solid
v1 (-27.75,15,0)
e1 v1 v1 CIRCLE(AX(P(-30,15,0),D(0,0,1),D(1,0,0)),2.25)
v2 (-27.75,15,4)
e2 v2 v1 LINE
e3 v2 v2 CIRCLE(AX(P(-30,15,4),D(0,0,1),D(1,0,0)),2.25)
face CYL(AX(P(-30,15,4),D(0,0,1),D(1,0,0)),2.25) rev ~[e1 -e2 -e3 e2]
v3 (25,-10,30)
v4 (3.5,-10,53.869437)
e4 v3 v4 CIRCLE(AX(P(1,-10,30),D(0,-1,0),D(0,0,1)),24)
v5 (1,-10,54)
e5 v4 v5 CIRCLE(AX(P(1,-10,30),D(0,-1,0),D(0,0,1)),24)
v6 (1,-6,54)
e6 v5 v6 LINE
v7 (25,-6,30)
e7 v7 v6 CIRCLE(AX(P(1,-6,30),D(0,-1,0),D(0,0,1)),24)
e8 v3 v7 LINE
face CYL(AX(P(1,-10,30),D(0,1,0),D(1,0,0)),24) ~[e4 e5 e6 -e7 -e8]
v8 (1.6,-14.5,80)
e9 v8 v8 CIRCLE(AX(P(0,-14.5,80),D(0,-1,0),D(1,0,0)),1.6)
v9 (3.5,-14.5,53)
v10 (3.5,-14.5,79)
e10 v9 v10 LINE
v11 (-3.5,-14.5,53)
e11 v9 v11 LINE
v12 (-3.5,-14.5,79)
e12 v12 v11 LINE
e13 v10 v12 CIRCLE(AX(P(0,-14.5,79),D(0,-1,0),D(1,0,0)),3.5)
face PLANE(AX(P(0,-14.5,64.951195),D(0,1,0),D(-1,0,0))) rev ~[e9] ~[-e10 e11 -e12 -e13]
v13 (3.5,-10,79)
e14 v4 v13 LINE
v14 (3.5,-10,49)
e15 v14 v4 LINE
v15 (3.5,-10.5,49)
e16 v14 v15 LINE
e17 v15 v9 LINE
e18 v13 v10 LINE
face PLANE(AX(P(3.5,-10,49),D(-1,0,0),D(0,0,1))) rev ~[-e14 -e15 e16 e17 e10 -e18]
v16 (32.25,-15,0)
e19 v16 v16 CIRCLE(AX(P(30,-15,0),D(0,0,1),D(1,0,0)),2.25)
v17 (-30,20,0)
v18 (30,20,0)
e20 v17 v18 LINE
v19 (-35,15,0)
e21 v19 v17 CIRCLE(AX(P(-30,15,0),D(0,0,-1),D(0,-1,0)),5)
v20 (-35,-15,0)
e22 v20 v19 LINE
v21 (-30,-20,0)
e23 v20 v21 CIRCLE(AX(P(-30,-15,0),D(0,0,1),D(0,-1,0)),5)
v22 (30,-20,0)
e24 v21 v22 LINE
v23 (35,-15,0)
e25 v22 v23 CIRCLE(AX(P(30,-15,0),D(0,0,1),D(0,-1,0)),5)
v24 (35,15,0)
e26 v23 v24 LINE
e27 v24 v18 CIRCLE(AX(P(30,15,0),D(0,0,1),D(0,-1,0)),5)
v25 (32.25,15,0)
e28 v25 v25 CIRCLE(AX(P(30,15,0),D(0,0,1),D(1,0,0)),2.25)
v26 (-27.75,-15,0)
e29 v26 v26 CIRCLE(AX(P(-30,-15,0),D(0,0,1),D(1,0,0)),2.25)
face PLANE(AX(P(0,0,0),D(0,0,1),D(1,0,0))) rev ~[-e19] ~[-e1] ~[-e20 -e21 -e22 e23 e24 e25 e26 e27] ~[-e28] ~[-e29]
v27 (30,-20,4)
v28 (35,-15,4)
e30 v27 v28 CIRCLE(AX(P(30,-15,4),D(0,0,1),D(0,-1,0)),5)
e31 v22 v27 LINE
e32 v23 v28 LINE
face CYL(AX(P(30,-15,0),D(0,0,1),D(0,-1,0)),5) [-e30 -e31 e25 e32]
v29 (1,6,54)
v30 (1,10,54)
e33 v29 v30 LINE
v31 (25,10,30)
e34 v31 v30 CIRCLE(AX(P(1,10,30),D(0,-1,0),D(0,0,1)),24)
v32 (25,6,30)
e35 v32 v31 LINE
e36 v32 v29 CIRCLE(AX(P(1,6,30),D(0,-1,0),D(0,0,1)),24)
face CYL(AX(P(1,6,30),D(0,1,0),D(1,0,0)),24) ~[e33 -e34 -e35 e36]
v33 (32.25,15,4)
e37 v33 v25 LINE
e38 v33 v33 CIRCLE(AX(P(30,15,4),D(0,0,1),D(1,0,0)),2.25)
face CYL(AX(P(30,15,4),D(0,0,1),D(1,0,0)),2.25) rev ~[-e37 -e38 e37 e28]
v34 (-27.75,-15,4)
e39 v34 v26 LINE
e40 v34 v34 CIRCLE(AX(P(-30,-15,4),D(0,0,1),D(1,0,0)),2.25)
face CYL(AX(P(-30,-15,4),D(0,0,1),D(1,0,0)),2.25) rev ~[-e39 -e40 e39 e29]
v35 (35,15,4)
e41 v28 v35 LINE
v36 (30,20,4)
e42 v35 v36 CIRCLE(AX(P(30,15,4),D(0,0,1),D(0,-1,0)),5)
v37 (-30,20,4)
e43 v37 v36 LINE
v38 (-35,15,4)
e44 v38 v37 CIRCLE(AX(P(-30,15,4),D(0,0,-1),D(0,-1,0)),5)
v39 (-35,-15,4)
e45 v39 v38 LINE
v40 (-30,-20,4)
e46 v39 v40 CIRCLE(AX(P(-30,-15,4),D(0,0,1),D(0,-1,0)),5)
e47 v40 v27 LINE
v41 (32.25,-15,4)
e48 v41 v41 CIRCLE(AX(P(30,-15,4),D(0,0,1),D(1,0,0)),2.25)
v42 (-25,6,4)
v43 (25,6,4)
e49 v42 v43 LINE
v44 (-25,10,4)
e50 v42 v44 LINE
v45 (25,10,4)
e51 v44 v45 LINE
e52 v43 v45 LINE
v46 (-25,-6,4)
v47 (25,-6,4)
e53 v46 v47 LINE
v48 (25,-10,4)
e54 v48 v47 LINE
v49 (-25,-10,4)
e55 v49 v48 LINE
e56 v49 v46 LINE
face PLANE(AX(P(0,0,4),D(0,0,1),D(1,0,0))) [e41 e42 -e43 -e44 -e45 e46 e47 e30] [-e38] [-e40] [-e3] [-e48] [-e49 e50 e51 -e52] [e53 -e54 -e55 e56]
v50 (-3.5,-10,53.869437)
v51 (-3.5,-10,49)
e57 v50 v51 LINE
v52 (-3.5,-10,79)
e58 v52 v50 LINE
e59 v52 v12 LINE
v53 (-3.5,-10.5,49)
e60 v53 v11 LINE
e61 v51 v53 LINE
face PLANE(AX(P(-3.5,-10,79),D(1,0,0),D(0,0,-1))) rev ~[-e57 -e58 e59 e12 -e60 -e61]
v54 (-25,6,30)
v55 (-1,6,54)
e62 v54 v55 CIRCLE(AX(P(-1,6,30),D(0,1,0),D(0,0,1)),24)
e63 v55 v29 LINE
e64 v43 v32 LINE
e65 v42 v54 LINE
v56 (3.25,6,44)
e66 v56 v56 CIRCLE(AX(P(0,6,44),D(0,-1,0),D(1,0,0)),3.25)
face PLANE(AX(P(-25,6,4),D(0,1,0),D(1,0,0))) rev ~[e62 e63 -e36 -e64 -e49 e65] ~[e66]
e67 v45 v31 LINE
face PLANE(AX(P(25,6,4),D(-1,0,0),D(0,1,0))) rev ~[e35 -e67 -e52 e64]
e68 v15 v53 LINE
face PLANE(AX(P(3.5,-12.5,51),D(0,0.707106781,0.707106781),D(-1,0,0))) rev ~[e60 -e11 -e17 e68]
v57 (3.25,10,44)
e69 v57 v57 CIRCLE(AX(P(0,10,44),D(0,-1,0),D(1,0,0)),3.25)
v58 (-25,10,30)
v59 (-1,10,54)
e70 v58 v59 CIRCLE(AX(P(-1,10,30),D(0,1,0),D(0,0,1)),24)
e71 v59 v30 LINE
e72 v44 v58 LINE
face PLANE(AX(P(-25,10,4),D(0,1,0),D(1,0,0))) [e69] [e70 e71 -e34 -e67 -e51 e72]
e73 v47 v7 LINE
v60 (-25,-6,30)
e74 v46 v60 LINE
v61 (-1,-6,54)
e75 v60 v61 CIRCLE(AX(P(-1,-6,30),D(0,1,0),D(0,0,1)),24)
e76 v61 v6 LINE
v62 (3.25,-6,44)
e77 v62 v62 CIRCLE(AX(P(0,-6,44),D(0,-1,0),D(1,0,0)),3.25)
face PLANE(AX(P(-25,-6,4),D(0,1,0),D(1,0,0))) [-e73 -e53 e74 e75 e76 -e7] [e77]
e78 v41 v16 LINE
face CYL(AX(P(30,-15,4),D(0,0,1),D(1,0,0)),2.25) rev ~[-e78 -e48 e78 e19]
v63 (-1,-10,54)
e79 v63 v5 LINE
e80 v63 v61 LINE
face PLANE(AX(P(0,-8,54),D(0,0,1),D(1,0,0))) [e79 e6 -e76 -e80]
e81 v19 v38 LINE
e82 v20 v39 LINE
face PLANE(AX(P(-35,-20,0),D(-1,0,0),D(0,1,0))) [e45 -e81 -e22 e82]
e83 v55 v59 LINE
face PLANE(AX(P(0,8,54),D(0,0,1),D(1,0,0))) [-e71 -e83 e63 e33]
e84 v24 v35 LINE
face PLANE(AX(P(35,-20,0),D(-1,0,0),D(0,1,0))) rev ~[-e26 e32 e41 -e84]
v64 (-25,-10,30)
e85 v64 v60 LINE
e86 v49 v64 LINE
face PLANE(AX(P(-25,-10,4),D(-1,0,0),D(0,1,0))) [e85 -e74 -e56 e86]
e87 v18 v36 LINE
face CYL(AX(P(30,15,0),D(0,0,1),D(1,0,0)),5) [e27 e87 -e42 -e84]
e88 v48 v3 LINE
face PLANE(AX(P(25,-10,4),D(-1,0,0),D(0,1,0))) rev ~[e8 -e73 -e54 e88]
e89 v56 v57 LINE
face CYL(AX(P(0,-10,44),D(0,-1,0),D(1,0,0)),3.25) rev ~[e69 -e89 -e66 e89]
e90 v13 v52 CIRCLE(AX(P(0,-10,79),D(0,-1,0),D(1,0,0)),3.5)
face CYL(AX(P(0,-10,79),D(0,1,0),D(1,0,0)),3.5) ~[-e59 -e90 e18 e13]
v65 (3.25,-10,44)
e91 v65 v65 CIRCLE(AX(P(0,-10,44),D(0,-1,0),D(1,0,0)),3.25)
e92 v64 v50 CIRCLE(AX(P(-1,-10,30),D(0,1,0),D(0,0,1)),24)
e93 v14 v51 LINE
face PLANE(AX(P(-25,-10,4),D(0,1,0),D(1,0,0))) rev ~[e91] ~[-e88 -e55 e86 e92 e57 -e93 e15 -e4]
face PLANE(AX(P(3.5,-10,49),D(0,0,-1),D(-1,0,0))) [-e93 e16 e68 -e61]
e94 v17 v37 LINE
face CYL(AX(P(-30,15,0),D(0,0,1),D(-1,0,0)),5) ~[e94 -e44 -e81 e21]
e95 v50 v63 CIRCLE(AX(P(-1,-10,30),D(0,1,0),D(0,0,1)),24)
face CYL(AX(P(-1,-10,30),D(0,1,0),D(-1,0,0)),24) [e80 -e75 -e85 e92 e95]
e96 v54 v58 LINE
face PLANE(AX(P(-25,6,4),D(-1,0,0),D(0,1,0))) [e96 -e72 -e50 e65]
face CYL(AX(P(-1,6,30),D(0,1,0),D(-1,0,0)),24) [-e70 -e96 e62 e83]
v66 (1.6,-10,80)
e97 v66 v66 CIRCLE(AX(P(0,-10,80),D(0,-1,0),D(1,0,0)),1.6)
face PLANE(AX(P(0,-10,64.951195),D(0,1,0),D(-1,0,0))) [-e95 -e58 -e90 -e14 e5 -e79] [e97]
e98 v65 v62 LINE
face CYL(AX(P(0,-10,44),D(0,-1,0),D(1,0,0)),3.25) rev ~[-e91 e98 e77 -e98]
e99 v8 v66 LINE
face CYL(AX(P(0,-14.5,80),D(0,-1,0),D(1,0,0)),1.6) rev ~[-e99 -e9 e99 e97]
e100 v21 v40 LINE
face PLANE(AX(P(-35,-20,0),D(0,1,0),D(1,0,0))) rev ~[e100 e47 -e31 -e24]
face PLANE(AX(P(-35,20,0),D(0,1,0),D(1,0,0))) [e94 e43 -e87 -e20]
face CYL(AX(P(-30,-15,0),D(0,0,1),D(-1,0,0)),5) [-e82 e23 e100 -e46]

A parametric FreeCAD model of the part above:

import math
import FreeCAD as App
import Part
import Sketcher

V = App.Vector


def edges_at(feature, points):
    """Names of the edges that pass closest to the given points."""
    edges = feature.Shape.Edges
    near = lambda p: min(range(len(edges)), key=lambda i: edges[i].distToShape(Part.Vertex(*p))[0])
    return sorted({f"Edge{near(p) + 1}" for p in points})


def add_polygon(sketch, points):
    """Adds a closed chain of lines whose ends are joined by coincident constraints."""
    first, n = sketch.GeometryCount, len(points)
    for a, b in zip(points, points[1:] + points[:1]):
        sketch.addGeometry(Part.LineSegment(App.Vector(*a, 0), App.Vector(*b, 0)), False)
    for i in range(n):
        sketch.addConstraint(Sketcher.Constraint("Coincident", first + i, 2, first + (i + 1) % n, 1))

doc = App.newDocument("Part")
params = doc.addObject("Spreadsheet::Sheet", "Params")
for row, (alias, value) in enumerate([
    ("sketch1_width", "70 mm"),
    ("sketch1_height", "40 mm"),
    ("pad1_length", "4 mm"),
    ("fillet_radius", "5 mm"),
    ("sketch2_diameter", "4.5 mm"),
    ("pocket1_length", "5 mm"),
    ("sketch3_width", "50 mm"),
    ("sketch3_height", "4 mm"),
    ("pad2_length", "50 mm"),
    ("sketch4_diameter", "6.5 mm"),
    ("fillet2_radius", "24 mm"),
    ("sketch5_radius", "3.5 mm"),
    ("sketch5_height", "30 mm"),
    ("pad3_length", "4.5 mm"),
    ("chamfer_size", "4 mm"),
    ("sketch6_diameter", "3.2 mm"),
    ("pocket3_length", "4.5 mm"),
], start=1):
    params.set(f"A{row}", alias)
    params.set(f"B{row}", "=" + value)
    params.setAlias(f"B{row}", alias)

body = doc.addObject("PartDesign::Body", "Body")

sketch1 = body.newObject("Sketcher::SketchObject", "Sketch")
sketch1.AttachmentSupport = (doc.getObject("XY_Plane"), [""])
sketch1.MapMode = "FlatFace"
add_polygon(sketch1, [(-35, 20), (-35, -20), (35, -20), (35, 20)])
sketch1.addConstraint([
    Sketcher.Constraint("Vertical", 0),
    Sketcher.Constraint("Horizontal", 1),
    Sketcher.Constraint("Vertical", 2),
    Sketcher.Constraint("Horizontal", 3),
    Sketcher.Constraint("Symmetric", 0, 2, 2, 2, -1, 1),
    Sketcher.Constraint("DistanceX", 1, 1, 1, 2, 70.0),
    Sketcher.Constraint("DistanceY", 0, 2, 0, 1, 40.0),
])
sketch1.setExpression("Constraints[9]", "Params.sketch1_width")
sketch1.setExpression("Constraints[10]", "Params.sketch1_height")
pad1 = body.newObject("PartDesign::Pad", "Pad")
pad1.Profile = sketch1
pad1.setExpression("Length", "Params.pad1_length")
doc.recompute()

fillet = body.newObject("PartDesign::Fillet", "Fillet")
fillet.Base = (pad1, edges_at(pad1, [
    (35, -20, 2),
    (35, 20, 2),
    (-35, -20, 2),
    (-35, 20, 2),
]))
fillet.setExpression("Radius", "Params.fillet_radius")

sketch2 = body.newObject("Sketcher::SketchObject", "Sketch001")
sketch2.AttachmentSupport = (doc.getObject("XY_Plane"), [""])
sketch2.MapMode = "FlatFace"
sketch2.AttachmentOffset = App.Placement(V(0, 0, 4), App.Rotation())
sketch2.addGeometry([
    Part.Circle(V(-30, 15, 0), V(0, 0, 1), 2.25),
    Part.Circle(V(30, 15, 0), V(0, 0, 1), 2.25),
    Part.Circle(V(30, -15, 0), V(0, 0, 1), 2.25),
    Part.Circle(V(-30, -15, 0), V(0, 0, 1), 2.25),
], False)
sketch2.addConstraint([
    Sketcher.Constraint("Equal", 0, 1),
    Sketcher.Constraint("Equal", 1, 2),
    Sketcher.Constraint("Equal", 2, 3),
    Sketcher.Constraint("Symmetric", 0, 3, 2, 3, -1, 1),
    Sketcher.Constraint("Symmetric", 1, 3, 3, 3, -1, 1),
    Sketcher.Constraint("Symmetric", 0, 3, 1, 3, -2),
    Sketcher.Constraint("Diameter", 0, 4.5),
    Sketcher.Constraint("DistanceX", 0, 3, -1, 1, 30.0),
    Sketcher.Constraint("DistanceY", -1, 1, 0, 3, 15.0),
])
sketch2.setExpression("Constraints[6]", "Params.sketch2_diameter")
pocket1 = body.newObject("PartDesign::Pocket", "Pocket")
pocket1.Profile = sketch2
pocket1.setExpression("Length", "Params.pocket1_length")

sketch3 = body.newObject("Sketcher::SketchObject", "Sketch002")
sketch3.AttachmentSupport = (doc.getObject("XY_Plane"), [""])
sketch3.MapMode = "FlatFace"
sketch3.AttachmentOffset = App.Placement(V(0, 0, 4), App.Rotation())
add_polygon(sketch3, [(-25, 10), (-25, 6), (25, 6), (25, 10)])
add_polygon(sketch3, [(-25, -6), (-25, -10), (25, -10), (25, -6)])
sketch3.addConstraint([
    Sketcher.Constraint("Vertical", 0),
    Sketcher.Constraint("Horizontal", 1),
    Sketcher.Constraint("Vertical", 2),
    Sketcher.Constraint("Horizontal", 3),
    Sketcher.Constraint("Vertical", 4),
    Sketcher.Constraint("Horizontal", 5),
    Sketcher.Constraint("Vertical", 6),
    Sketcher.Constraint("Horizontal", 7),
    Sketcher.Constraint("Symmetric", 2, 2, 4, 2, -1, 1),
    Sketcher.Constraint("Symmetric", 0, 2, 6, 2, -1, 1),
    Sketcher.Constraint("Vertical", 3, 2, 4, 2),
    Sketcher.Constraint("DistanceX", 1, 1, 1, 2, 50.0),
    Sketcher.Constraint("DistanceY", 0, 2, 0, 1, 4.0),
    Sketcher.Constraint("DistanceY", -1, 1, 0, 2, 6.0),
])
sketch3.setExpression("Constraints[19]", "Params.sketch3_width")
sketch3.setExpression("Constraints[20]", "Params.sketch3_height")
pad2 = body.newObject("PartDesign::Pad", "Pad001")
pad2.Profile = sketch3
pad2.setExpression("Length", "Params.pad2_length")

sketch4 = body.newObject("Sketcher::SketchObject", "Sketch003")
sketch4.AttachmentSupport = (doc.getObject("XZ_Plane"), [""])
sketch4.MapMode = "FlatFace"
sketch4.AttachmentOffset = App.Placement(V(0, 0, 10), App.Rotation())
sketch4.addGeometry(Part.Circle(V(0, 44, 0), V(0, 0, 1), 3.25), False)
sketch4.addConstraint([
    Sketcher.Constraint("PointOnObject", 0, 3, -2),
    Sketcher.Constraint("Diameter", 0, 6.5),
    Sketcher.Constraint("DistanceY", -1, 1, 0, 3, 44.0),
])
sketch4.setExpression("Constraints[1]", "Params.sketch4_diameter")
pocket2 = body.newObject("PartDesign::Pocket", "Pocket001")
pocket2.Profile = sketch4
pocket2.Type = "ThroughAll"
doc.recompute()

fillet2 = body.newObject("PartDesign::Fillet", "Fillet001")
fillet2.Base = (pocket2, edges_at(pocket2, [
    (-25, 8, 54),
    (-25, -8, 54),
    (25, 8, 54),
    (25, -8, 54),
]))
fillet2.setExpression("Radius", "Params.fillet2_radius")

sketch5 = body.newObject("Sketcher::SketchObject", "Sketch004")
sketch5.AttachmentSupport = (doc.getObject("XZ_Plane"), [""])
sketch5.MapMode = "FlatFace"
sketch5.AttachmentOffset = App.Placement(V(0, 0, 10), App.Rotation())
sketch5.addGeometry([
    Part.LineSegment(V(-3.5, 49, 0), V(3.5, 49, 0)),
    Part.LineSegment(V(3.5, 49, 0), V(3.5, 79, 0)),
    Part.ArcOfCircle(Part.Circle(V(0, 79, 0), V(0, 0, 1), 3.5), math.radians(0), math.radians(180)),
    Part.LineSegment(V(-3.5, 79, 0), V(-3.5, 49, 0)),
], False)
sketch5.addConstraint([
    Sketcher.Constraint("Coincident", 0, 2, 1, 1),
    Sketcher.Constraint("Tangent", 1, 2, 2, 1),
    Sketcher.Constraint("Tangent", 2, 2, 3, 1),
    Sketcher.Constraint("Coincident", 3, 2, 0, 1),
    Sketcher.Constraint("Horizontal", 0),
    Sketcher.Constraint("Vertical", 1),
    Sketcher.Constraint("Vertical", 3),
    Sketcher.Constraint("PointOnObject", 2, 3, -2),
    Sketcher.Constraint("Radius", 2, 3.5),
    Sketcher.Constraint("DistanceY", 1, 1, 1, 2, 30.0),
    Sketcher.Constraint("DistanceY", -1, 1, 2, 3, 79.0),
])
sketch5.setExpression("Constraints[8]", "Params.sketch5_radius")
sketch5.setExpression("Constraints[9]", "Params.sketch5_height")
pad3 = body.newObject("PartDesign::Pad", "Pad002")
pad3.Profile = sketch5
pad3.setExpression("Length", "Params.pad3_length")
doc.recompute()

chamfer = body.newObject("PartDesign::Chamfer", "Chamfer")
chamfer.Base = (pad3, edges_at(pad3, [(0, -14.5, 49)]))
chamfer.setExpression("Size", "Params.chamfer_size")

sketch6 = body.newObject("Sketcher::SketchObject", "Sketch005")
sketch6.AttachmentSupport = (doc.getObject("XZ_Plane"), [""])
sketch6.MapMode = "FlatFace"
sketch6.AttachmentOffset = App.Placement(V(0, 0, 14.5), App.Rotation())
sketch6.addGeometry(Part.Circle(V(0, 80, 0), V(0, 0, 1), 1.6), False)
sketch6.addConstraint([
    Sketcher.Constraint("PointOnObject", 0, 3, -2),
    Sketcher.Constraint("Diameter", 0, 3.2),
    Sketcher.Constraint("DistanceY", -1, 1, 0, 3, 80.0),
])
sketch6.setExpression("Constraints[1]", "Params.sketch6_diameter")
pocket3 = body.newObject("PartDesign::Pocket", "Pocket002")
pocket3.Profile = sketch6
pocket3.setExpression("Length", "Params.pocket3_length")

doc.recompute()
